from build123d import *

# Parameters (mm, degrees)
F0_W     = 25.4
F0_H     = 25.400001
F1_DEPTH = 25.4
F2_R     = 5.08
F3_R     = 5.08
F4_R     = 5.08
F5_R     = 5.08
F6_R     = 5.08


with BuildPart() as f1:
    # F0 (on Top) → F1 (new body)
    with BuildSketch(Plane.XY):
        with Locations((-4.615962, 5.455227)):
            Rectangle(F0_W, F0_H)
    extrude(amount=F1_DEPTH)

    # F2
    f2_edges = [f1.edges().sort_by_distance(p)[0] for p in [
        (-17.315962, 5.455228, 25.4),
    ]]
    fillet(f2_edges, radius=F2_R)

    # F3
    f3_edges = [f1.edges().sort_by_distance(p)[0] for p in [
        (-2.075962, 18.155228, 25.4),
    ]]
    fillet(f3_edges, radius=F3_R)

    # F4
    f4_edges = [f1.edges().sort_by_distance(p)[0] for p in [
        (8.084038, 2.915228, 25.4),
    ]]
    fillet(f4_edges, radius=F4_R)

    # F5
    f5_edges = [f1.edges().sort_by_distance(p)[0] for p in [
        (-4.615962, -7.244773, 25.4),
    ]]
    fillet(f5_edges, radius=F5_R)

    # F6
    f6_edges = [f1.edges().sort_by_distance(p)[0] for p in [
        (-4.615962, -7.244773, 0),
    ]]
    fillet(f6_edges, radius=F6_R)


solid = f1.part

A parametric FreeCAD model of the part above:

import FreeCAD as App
import Part
import Sketcher
Q = App.Units.Quantity


def edges_at(feature, points):
    """Names of the edges that pass closest to the given points."""
    edges = feature.Shape.Edges
    near = lambda p: min(range(len(edges)), key=lambda i: edges[i].distToShape(Part.Vertex(*p))[0])
    return sorted({f"Edge{near(p) + 1}" for p in points})


def add_polygon(sketch, points):
    """Adds a closed chain of lines whose ends are joined by coincident constraints."""
    first, n = sketch.GeometryCount, len(points)
    for a, b in zip(points, points[1:] + points[:1]):
        sketch.addGeometry(Part.LineSegment(App.Vector(*a, 0), App.Vector(*b, 0)), False)
    for i in range(n):
        sketch.addConstraint(Sketcher.Constraint("Coincident", first + i, 2, first + (i + 1) % n, 1))

doc = App.newDocument("Part")
body = doc.addObject("PartDesign::Body", "Body")

# Sketch on XY plane
sketch1 = body.newObject("Sketcher::SketchObject", "Sketch")
sketch1.AttachmentSupport = (doc.getObject("XY_Plane"), [""])
sketch1.MapMode = "FlatFace"
add_polygon(sketch1, [(-17, 18), (-17, -7), (8, -7), (8, 18)])  # lines 0-3
sketch1.addConstraint(Sketcher.Constraint("Vertical", 0))
sketch1.addConstraint(Sketcher.Constraint("Horizontal", 1))
sketch1.addConstraint(Sketcher.Constraint("Vertical", 2))
sketch1.addConstraint(Sketcher.Constraint("Horizontal", 3))
sketch1.addConstraint(Sketcher.Constraint("Equal", 3, 0))
sketch1.addConstraint(Sketcher.Constraint("DistanceX", 1, 1, 1, 2, Q("1 in")))
sketch1.addConstraint(Sketcher.Constraint("DistanceX", 0, 2, -1, 1, 17.315962))
sketch1.addConstraint(Sketcher.Constraint("DistanceY", 0, 2, -1, 1, 7.244773))
pad1 = body.newObject("PartDesign::Pad", "Pad")
pad1.Profile = sketch1
pad1.Length = Q("1 in")
doc.recompute()

fillet = body.newObject("PartDesign::Fillet", "Fillet")
fillet.Base = (pad1, edges_at(pad1, [(-17.316, 5.455, 25.4)]))
fillet.Radius = Q("0.2 in")
doc.recompute()

fillet2 = body.newObject("PartDesign::Fillet", "Fillet001")
fillet2.Base = (fillet, edges_at(fillet, [(-2.076, 18.155, 25.4)]))
fillet2.Radius = Q("0.2 in")
doc.recompute()

fillet3 = body.newObject("PartDesign::Fillet", "Fillet002")
fillet3.Base = (fillet2, edges_at(fillet2, [(8.084, 2.915, 25.4)]))
fillet3.Radius = Q("0.2 in")
doc.recompute()

fillet4 = body.newObject("PartDesign::Fillet", "Fillet003")
fillet4.Base = (fillet3, edges_at(fillet3, [(-4.616, -7.245, 25.4)]))
fillet4.Radius = Q("0.2 in")
doc.recompute()

fillet5 = body.newObject("PartDesign::Fillet", "Fillet004")
fillet5.Base = (fillet4, edges_at(fillet4, [(-4.616, -7.245, 0)]))
fillet5.Radius = Q("0.2 in")

doc.recompute()
